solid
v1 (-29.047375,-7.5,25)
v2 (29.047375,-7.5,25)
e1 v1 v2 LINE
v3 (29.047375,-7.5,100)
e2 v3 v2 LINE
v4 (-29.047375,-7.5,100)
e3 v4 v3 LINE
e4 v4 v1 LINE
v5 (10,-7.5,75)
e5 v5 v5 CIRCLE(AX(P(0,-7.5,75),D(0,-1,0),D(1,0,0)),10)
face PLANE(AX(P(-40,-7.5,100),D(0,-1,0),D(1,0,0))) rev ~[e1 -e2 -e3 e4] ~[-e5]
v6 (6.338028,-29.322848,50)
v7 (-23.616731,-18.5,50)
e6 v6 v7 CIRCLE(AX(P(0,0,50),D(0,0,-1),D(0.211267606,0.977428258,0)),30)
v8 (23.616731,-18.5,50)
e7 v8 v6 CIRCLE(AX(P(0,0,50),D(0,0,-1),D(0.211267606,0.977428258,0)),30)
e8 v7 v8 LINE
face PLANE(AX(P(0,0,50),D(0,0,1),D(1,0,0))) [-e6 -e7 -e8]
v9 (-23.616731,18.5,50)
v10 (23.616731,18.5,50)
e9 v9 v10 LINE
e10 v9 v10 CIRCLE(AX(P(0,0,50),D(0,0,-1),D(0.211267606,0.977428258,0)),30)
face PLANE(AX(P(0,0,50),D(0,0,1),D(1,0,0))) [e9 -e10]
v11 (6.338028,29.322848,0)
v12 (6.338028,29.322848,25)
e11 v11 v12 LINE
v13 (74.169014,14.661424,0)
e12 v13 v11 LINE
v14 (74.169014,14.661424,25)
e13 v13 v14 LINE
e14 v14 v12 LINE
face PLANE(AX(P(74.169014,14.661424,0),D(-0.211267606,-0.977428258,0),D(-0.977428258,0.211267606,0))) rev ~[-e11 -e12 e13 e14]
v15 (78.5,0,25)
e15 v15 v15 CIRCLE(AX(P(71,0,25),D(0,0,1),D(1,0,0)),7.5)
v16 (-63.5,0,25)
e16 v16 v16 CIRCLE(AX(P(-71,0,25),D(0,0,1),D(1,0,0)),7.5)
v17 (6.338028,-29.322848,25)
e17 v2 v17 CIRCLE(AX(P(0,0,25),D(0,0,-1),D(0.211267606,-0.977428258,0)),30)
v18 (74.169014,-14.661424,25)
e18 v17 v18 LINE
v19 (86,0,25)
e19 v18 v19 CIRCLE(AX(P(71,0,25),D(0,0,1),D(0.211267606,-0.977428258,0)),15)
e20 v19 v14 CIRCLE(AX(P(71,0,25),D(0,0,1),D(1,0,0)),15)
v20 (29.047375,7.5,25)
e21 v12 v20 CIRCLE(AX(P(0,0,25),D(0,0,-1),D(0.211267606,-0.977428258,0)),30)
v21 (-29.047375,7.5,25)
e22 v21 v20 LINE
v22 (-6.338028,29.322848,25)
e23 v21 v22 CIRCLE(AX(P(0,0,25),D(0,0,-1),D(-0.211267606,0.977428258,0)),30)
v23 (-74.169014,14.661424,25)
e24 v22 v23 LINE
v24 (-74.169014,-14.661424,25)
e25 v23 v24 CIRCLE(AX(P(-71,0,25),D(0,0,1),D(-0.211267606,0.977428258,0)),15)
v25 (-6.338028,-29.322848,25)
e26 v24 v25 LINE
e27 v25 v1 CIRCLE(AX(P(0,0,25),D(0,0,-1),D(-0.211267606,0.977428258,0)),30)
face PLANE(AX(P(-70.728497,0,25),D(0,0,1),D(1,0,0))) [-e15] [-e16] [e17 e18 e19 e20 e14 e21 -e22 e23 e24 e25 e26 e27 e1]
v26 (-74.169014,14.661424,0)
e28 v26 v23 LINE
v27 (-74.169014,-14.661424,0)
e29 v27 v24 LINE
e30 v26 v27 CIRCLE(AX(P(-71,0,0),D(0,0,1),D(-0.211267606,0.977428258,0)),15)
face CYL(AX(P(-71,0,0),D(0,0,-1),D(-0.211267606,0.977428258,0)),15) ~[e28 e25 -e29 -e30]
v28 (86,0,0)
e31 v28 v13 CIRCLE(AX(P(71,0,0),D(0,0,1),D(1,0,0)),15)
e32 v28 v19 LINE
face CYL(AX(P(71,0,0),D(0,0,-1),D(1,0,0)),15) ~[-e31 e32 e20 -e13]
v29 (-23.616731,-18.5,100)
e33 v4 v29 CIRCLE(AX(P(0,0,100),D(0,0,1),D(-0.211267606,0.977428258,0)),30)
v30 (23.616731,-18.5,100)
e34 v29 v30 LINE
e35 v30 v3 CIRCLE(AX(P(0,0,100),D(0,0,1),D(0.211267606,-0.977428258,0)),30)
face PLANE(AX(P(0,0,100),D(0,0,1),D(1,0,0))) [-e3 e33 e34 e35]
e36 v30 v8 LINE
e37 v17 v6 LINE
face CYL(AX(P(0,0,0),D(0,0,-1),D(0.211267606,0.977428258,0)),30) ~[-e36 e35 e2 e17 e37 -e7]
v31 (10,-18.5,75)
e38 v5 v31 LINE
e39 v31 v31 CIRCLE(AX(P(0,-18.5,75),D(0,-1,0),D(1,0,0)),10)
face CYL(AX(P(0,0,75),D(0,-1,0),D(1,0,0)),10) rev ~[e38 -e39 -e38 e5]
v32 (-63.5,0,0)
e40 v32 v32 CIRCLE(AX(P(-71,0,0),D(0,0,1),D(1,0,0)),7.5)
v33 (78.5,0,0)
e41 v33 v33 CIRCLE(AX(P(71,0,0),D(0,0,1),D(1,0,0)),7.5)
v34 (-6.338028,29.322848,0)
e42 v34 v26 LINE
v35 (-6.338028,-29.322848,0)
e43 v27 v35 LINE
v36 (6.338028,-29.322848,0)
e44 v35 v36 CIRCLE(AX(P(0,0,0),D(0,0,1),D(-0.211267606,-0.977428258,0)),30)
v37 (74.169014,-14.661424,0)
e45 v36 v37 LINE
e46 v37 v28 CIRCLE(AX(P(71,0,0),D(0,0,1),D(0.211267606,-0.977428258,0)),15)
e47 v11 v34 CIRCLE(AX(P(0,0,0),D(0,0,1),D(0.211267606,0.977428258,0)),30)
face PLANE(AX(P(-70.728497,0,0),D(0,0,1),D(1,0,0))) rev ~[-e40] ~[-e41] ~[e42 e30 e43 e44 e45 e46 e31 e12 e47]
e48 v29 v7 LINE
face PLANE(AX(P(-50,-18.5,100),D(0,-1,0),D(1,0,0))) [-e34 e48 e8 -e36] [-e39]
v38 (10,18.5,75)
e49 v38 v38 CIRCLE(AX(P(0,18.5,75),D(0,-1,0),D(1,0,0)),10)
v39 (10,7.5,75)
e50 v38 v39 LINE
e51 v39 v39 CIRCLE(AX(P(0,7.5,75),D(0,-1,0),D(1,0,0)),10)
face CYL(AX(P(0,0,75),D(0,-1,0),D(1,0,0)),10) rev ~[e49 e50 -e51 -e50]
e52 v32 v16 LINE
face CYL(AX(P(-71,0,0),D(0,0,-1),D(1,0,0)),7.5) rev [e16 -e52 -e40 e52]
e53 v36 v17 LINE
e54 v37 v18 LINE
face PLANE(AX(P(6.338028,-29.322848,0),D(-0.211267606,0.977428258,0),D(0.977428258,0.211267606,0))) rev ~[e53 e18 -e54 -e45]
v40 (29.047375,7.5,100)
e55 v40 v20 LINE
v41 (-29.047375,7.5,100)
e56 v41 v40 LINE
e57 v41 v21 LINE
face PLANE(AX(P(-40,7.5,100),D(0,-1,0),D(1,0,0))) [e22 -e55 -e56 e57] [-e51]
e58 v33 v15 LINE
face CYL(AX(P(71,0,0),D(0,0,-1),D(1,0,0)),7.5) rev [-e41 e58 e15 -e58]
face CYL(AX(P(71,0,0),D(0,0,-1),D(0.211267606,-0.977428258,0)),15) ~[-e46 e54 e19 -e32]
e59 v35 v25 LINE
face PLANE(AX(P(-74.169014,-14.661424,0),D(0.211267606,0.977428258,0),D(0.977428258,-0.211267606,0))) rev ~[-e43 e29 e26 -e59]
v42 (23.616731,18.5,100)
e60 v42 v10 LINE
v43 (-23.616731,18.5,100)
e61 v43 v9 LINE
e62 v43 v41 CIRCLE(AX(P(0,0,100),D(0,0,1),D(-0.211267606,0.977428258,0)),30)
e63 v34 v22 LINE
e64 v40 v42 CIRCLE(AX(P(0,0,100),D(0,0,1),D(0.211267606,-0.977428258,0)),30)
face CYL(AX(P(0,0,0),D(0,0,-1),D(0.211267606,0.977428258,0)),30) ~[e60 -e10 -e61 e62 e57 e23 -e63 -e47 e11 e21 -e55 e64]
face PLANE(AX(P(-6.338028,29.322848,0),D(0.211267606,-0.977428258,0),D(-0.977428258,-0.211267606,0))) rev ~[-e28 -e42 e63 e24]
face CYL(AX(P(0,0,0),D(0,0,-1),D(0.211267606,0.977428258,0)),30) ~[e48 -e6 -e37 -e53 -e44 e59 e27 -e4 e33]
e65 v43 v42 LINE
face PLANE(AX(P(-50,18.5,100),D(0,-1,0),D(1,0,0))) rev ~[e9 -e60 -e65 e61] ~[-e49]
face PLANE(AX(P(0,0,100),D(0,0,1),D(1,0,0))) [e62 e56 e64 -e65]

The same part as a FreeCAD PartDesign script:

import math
import FreeCAD as App
import Part
import Sketcher
Q = App.Units.Quantity


def add_polygon(sketch, points):
    """Adds a closed chain of lines whose ends are joined by coincident constraints."""
    first, n = sketch.GeometryCount, len(points)
    for a, b in zip(points, points[1:] + points[:1]):
        sketch.addGeometry(Part.LineSegment(App.Vector(*a, 0), App.Vector(*b, 0)), False)
    for i in range(n):
        sketch.addConstraint(Sketcher.Constraint("Coincident", first + i, 2, first + (i + 1) % n, 1))

doc = App.newDocument("Part")
params = doc.addObject("Spreadsheet::Sheet", "Params")
for row, (alias, value) in enumerate([
    ("sketch1_diameter", "15 mm"),
    ("sketch1_radius", "15 mm"),
    ("sketch1_radius2", "30 mm"),
    ("pad1_length", "25 mm"),
    ("sketch2_radius", "30 mm"),
    ("pad2_length", "100 mm"),
    ("sketch3_width", "80 mm"),
    ("sketch3_height", "15 mm"),
    ("pocket1_length", "75 mm"),
    ("sketch4_width", "130 mm"),
    ("sketch4_width2", "100 mm"),
    ("sketch4_height", "70 mm"),
    ("sketch4_height2", "37 mm"),
    ("pocket2_length", "50 mm"),
    ("sketch5_diameter", "20 mm"),
    ("pocket3_length", "50 mm"),
], start=1):
    params.set(f"A{row}", alias)
    params.set(f"B{row}", "=" + value)
    params.setAlias(f"B{row}", alias)

body = doc.addObject("PartDesign::Body", "Body")

# Sketch on XY plane
sketch1 = body.newObject("Sketcher::SketchObject", "Sketch")
sketch1.AttachmentSupport = (doc.getObject("XY_Plane"), [""])
sketch1.MapMode = "FlatFace"
sketch1.addGeometry([
    Part.ArcOfCircle(Part.Circle(App.Vector(-71, 0, 0), App.Vector(0, 0, 1), 15), math.radians(102.196648), math.radians(257.803352)),  # 0
    Part.LineSegment(App.Vector(-74.169014, -14.661424, 0), App.Vector(-6.338028, -29.322848, 0)),  # 1
    Part.ArcOfCircle(Part.Circle(App.Vector(0, 0, 0), App.Vector(0, 0, 1), 30), math.radians(-102.196648), math.radians(-77.803352)),  # 2
    Part.LineSegment(App.Vector(6.338028, -29.322848, 0), App.Vector(74.169014, -14.661424, 0)),  # 3
    Part.ArcOfCircle(Part.Circle(App.Vector(71, 0, 0), App.Vector(0, 0, 1), 15), math.radians(-77.803352), math.radians(0)),  # 4
    Part.ArcOfCircle(Part.Circle(App.Vector(71, 0, 0), App.Vector(0, 0, 1), 15), math.radians(0), math.radians(77.803352)),  # 5
    Part.LineSegment(App.Vector(74.169014, 14.661424, 0), App.Vector(6.338028, 29.322848, 0)),  # 6
    Part.ArcOfCircle(Part.Circle(App.Vector(0, 0, 0), App.Vector(0, 0, 1), 30), math.radians(77.803352), math.radians(102.196648)),  # 7
    Part.LineSegment(App.Vector(-6.338028, 29.322848, 0), App.Vector(-74.169014, 14.661424, 0)),  # 8
    Part.Circle(App.Vector(-71, 0, 0), App.Vector(0, 0, 1), 7.5),  # 9
    Part.Circle(App.Vector(71, 0, 0), App.Vector(0, 0, 1), 7.5),  # 10
], False)
sketch1.addConstraint([
    Sketcher.Constraint("Tangent", 0, 2, 1, 1),
    Sketcher.Constraint("Tangent", 1, 2, 2, 1),
    Sketcher.Constraint("Tangent", 2, 2, 3, 1),
    Sketcher.Constraint("Tangent", 3, 2, 4, 1),
    Sketcher.Constraint("Tangent", 4, 2, 5, 1),
    Sketcher.Constraint("Tangent", 5, 2, 6, 1),
    Sketcher.Constraint("Tangent", 6, 2, 7, 1),
    Sketcher.Constraint("Tangent", 7, 2, 8, 1),
    Sketcher.Constraint("Tangent", 8, 2, 0, 1),
    Sketcher.Constraint("Coincident", 2, 3, -1, 1),
    Sketcher.Constraint("Coincident", 7, 3, -1, 1),
    Sketcher.Constraint("Coincident", 9, 3, 0, 3),
    Sketcher.Constraint("Coincident", 10, 3, 4, 3),
    Sketcher.Constraint("Equal", 0, 4),
    Sketcher.Constraint("Equal", 4, 5),
    Sketcher.Constraint("Equal", 2, 7),
    Sketcher.Constraint("Equal", 9, 10),
    Sketcher.Constraint("Symmetric", 0, 3, 4, 3, -1, 1),
    Sketcher.Constraint("PointOnObject", 0, 3, -1),
    Sketcher.Constraint("PointOnObject", 4, 2, -1),
    Sketcher.Constraint("Diameter", 9, Q("15 mm")),
    Sketcher.Constraint("Radius", 0, Q("15 mm")),
    Sketcher.Constraint("Radius", 2, Q("30 mm")),
    Sketcher.Constraint("DistanceX", 0, 3, -1, 1, Q("71 mm")),
])
sketch1.setExpression("Constraints[20]", "Params.sketch1_diameter")
sketch1.setExpression("Constraints[21]", "Params.sketch1_radius")
sketch1.setExpression("Constraints[22]", "Params.sketch1_radius2")
pad1 = body.newObject("PartDesign::Pad", "Pad")
pad1.Profile = sketch1
pad1.setExpression("Length", "Params.pad1_length")

# Sketch on XY plane
sketch2 = body.newObject("Sketcher::SketchObject", "Sketch001")
sketch2.AttachmentSupport = (doc.getObject("XY_Plane"), [""])
sketch2.MapMode = "FlatFace"
sketch2.addGeometry([
    Part.ArcOfCircle(Part.Circle(App.Vector(0, 0, 0), App.Vector(0, 0, 1), 30), math.radians(77.803352), math.radians(102.196648)),
    Part.ArcOfCircle(Part.Circle(App.Vector(0, 0, 0), App.Vector(0, 0, 1), 30), math.radians(102.196648), math.radians(257.803352)),
    Part.ArcOfCircle(Part.Circle(App.Vector(0, 0, 0), App.Vector(0, 0, 1), 30), math.radians(-102.196648), math.radians(-77.803352)),
    Part.ArcOfCircle(Part.Circle(App.Vector(0, 0, 0), App.Vector(0, 0, 1), 30), math.radians(-77.803352), math.radians(77.803352)),
], False)
sketch2.addConstraint([
    Sketcher.Constraint("Tangent", 0, 2, 1, 1),
    Sketcher.Constraint("Tangent", 1, 2, 2, 1),
    Sketcher.Constraint("Tangent", 2, 2, 3, 1),
    Sketcher.Constraint("Tangent", 3, 2, 0, 1),
    Sketcher.Constraint("Coincident", 0, 3, -1, 1),
    Sketcher.Constraint("Equal", 0, 1),
    Sketcher.Constraint("Horizontal", 1, 2, 2, 2),
    Sketcher.Constraint("Horizontal", 0, 2, 3, 2),
    Sketcher.Constraint("Vertical", 0, 2, 1, 2),
    Sketcher.Constraint("Radius", 0, Q("30 mm")),
    Sketcher.Constraint("DistanceX", 0, 2, -1, 1, Q("6.338028 mm")),
])
sketch2.setExpression("Constraints[9]", "Params.sketch2_radius")
pad2 = body.newObject("PartDesign::Pad", "Pad001")
pad2.Profile = sketch2
pad2.setExpression("Length", "Params.pad2_length")

# Sketch on XY plane
sketch3 = body.newObject("Sketcher::SketchObject", "Sketch002")
sketch3.AttachmentSupport = (doc.getObject("XY_Plane"), [""])
sketch3.MapMode = "FlatFace"
sketch3.AttachmentOffset = App.Placement(App.Vector(0, 0, 100), App.Rotation())
add_polygon(sketch3, [(-40, 7.5), (-40, -7.5), (40, -7.5), (40, 7.5)])  # lines 0-3
sketch3.addConstraint([
    Sketcher.Constraint("Vertical", 0),
    Sketcher.Constraint("Horizontal", 1),
    Sketcher.Constraint("Vertical", 2),
    Sketcher.Constraint("Horizontal", 3),
    Sketcher.Constraint("Symmetric", 0, 2, 2, 2, -1, 1),
    Sketcher.Constraint("DistanceX", 1, 1, 1, 2, Q("80 mm")),
    Sketcher.Constraint("DistanceY", 0, 2, 0, 1, Q("15 mm")),
])
sketch3.setExpression("Constraints[9]", "Params.sketch3_width")
sketch3.setExpression("Constraints[10]", "Params.sketch3_height")
pocket1 = body.newObject("PartDesign::Pocket", "Pocket")
pocket1.Profile = sketch3
pocket1.setExpression("Length", "Params.pocket1_length")

# Sketch on XY plane
sketch4 = body.newObject("Sketcher::SketchObject", "Sketch003")
sketch4.AttachmentSupport = (doc.getObject("XY_Plane"), [""])
sketch4.MapMode = "FlatFace"
sketch4.AttachmentOffset = App.Placement(App.Vector(0, 0, 100), App.Rotation())
add_polygon(sketch4, [(-65, 35), (-65, -35), (65, -35), (65, 35)])  # lines 0-3
add_polygon(sketch4, [(50, -18.5), (-50, -18.5), (-50, 18.5), (50, 18.5)])  # lines 4-7
sketch4.addConstraint([
    Sketcher.Constraint("Vertical", 0),
    Sketcher.Constraint("Horizontal", 1),
    Sketcher.Constraint("Vertical", 2),
    Sketcher.Constraint("Horizontal", 3),
    Sketcher.Constraint("Horizontal", 4),
    Sketcher.Constraint("Vertical", 5),
    Sketcher.Constraint("Horizontal", 6),
    Sketcher.Constraint("Vertical", 7),
    Sketcher.Constraint("Symmetric", 0, 2, 2, 2, -1, 1),
    Sketcher.Constraint("Symmetric", 4, 2, 6, 2, -1, 1),
    Sketcher.Constraint("DistanceX", 1, 1, 1, 2, Q("130 mm")),
    Sketcher.Constraint("DistanceX", 4, 2, 4, 1, Q("100 mm")),
    Sketcher.Constraint("DistanceY", 0, 2, 0, 1, Q("70 mm")),
    Sketcher.Constraint("DistanceY", 5, 1, 5, 2, Q("37 mm")),
])
sketch4.setExpression("Constraints[18]", "Params.sketch4_width")
sketch4.setExpression("Constraints[19]", "Params.sketch4_width2")
sketch4.setExpression("Constraints[20]", "Params.sketch4_height")
sketch4.setExpression("Constraints[21]", "Params.sketch4_height2")
pocket2 = body.newObject("PartDesign::Pocket", "Pocket001")
pocket2.Profile = sketch4
pocket2.setExpression("Length", "Params.pocket2_length")

# Sketch on XZ plane
sketch5 = body.newObject("Sketcher::SketchObject", "Sketch004")
sketch5.AttachmentSupport = (doc.getObject("XZ_Plane"), [""])
sketch5.MapMode = "FlatFace"
sketch5.addGeometry(Part.Circle(App.Vector(0, 75, 0), App.Vector(0, 0, 1), 10), False)
sketch5.addConstraint([
    Sketcher.Constraint("PointOnObject", 0, 3, -2),
    Sketcher.Constraint("Diameter", 0, Q("20 mm")),
    Sketcher.Constraint("DistanceY", -1, 1, 0, 3, Q("75 mm")),
])
sketch5.setExpression("Constraints[1]", "Params.sketch5_diameter")
pocket3 = body.newObject("PartDesign::Pocket", "Pocket002")
pocket3.Profile = sketch5
pocket3.setExpression("Length", "Params.pocket3_length")
pocket3.Midplane = True

doc.recompute()
